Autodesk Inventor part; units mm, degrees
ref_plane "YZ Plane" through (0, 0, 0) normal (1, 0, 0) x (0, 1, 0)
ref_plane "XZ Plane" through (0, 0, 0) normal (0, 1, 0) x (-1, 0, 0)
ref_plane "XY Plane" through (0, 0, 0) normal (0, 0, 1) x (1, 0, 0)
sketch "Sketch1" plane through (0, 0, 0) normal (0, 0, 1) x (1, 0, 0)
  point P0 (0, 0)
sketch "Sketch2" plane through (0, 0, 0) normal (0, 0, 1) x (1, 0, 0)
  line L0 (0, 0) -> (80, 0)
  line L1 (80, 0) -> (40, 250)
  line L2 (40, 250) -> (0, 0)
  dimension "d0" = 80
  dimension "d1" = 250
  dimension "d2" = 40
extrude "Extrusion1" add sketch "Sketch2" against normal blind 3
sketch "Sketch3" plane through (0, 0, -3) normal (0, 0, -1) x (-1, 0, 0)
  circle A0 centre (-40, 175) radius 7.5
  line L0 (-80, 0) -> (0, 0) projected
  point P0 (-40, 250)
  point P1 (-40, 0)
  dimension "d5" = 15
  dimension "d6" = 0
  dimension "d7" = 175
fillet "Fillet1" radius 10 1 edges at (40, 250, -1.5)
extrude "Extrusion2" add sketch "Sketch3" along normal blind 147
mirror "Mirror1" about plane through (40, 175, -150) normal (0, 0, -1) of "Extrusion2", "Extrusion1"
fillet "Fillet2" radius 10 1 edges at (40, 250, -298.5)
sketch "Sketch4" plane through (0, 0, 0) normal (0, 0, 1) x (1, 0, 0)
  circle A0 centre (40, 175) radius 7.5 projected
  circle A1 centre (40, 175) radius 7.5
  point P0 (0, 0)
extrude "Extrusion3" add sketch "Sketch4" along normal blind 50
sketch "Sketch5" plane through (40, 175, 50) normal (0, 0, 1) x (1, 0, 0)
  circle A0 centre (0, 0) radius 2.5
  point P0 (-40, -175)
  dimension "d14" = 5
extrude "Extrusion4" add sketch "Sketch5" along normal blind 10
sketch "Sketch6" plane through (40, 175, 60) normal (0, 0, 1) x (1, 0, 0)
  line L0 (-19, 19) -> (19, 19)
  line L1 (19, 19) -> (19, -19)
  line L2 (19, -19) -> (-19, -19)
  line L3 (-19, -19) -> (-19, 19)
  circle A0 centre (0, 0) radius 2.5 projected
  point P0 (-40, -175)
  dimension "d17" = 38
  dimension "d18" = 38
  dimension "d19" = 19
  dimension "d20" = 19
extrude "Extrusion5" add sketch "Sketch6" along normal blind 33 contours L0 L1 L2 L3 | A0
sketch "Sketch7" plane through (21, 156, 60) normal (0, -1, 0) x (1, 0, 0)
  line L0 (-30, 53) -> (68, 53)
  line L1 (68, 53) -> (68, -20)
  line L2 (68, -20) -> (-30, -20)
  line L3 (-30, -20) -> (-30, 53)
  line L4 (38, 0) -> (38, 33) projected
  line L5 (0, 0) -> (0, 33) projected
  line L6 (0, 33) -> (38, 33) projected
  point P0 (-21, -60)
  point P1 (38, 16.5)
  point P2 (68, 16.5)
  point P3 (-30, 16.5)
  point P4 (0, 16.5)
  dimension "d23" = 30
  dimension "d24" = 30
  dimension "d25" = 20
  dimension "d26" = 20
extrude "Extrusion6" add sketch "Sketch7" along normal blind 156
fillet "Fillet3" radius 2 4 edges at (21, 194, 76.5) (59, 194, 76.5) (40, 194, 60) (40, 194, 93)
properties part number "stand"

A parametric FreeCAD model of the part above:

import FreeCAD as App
import Part
import Sketcher
from FreeCAD import Vector


def edges_at(feature, points):
    """Names of the edges that pass closest to the given points."""
    edges = feature.Shape.Edges
    near = lambda p: min(range(len(edges)), key=lambda i: edges[i].distToShape(Part.Vertex(*p))[0])
    return sorted({f"Edge{near(p) + 1}" for p in points})

doc = App.newDocument("Part")
body = doc.addObject("PartDesign::Body", "Body")

# Sketch on XY plane
sketch1 = body.newObject("Sketcher::SketchObject", "Sketch")
sketch1.AttachmentSupport = (doc.getObject("XY_Plane"), [""])
sketch1.MapMode = "FlatFace"
sketch1.addGeometry(Part.LineSegment(Vector(40, 250, 0), Vector(0, 0, 0)), False)
sketch1.addGeometry(Part.LineSegment(Vector(0, 0, 0), Vector(80, 0, 0)), False)
sketch1.addGeometry(Part.LineSegment(Vector(80, 0, 0), Vector(40, 250, 0)), False)
sketch1.addConstraint(Sketcher.Constraint("Coincident", 0, 2, 1, 1))
sketch1.addConstraint(Sketcher.Constraint("Coincident", 1, 2, 2, 1))
sketch1.addConstraint(Sketcher.Constraint("Coincident", 2, 2, 0, 1))
sketch1.addConstraint(Sketcher.Constraint("Horizontal", 1))
sketch1.addConstraint(Sketcher.Constraint("Coincident", 0, 2, -1, 1))
sketch1.addConstraint(Sketcher.Constraint("Equal", 0, 2))
sketch1.addConstraint(Sketcher.Constraint("DistanceX", 1, 1, 1, 2, 80.0))
sketch1.addConstraint(Sketcher.Constraint("DistanceY", -1, 1, 2, 2, 250.0))
pad1 = body.newObject("PartDesign::Pad", "Pad")
pad1.Profile = sketch1
pad1.Length = 3
pad1.Reversed = True
doc.recompute()

fillet = body.newObject("PartDesign::Fillet", "Fillet")
fillet.Base = (pad1, edges_at(pad1, [(40, 250, -1.5)]))
fillet.Radius = 10

# Sketch on XY plane
sketch2 = body.newObject("Sketcher::SketchObject", "Sketch001")
sketch2.AttachmentSupport = (doc.getObject("XY_Plane"), [""])
sketch2.MapMode = "FlatFace"
sketch2.AttachmentOffset = App.Placement(Vector(0, 0, -3), App.Rotation())
sketch2.addGeometry(Part.Circle(Vector(40, 175, 0), Vector(0, 0, 1), 8), False)
sketch2.addConstraint(Sketcher.Constraint("Diameter", 0, 15.0))
sketch2.addConstraint(Sketcher.Constraint("DistanceY", -1, 1, 0, 3, 175.0))
sketch2.addConstraint(Sketcher.Constraint("DistanceX", -1, 1, 0, 3, 40.0))
pad2 = body.newObject("PartDesign::Pad", "Pad001")
pad2.Profile = sketch2
pad2.Length = 147
pad2.Reversed = True
doc.recompute()

datumplane = body.newObject("PartDesign::Plane", "DatumPlane")
datumplane.AttachmentSupport = (doc.getObject("XY_Plane"), [""])
datumplane.MapMode = "FlatFace"
datumplane.AttachmentOffset = App.Placement(Vector(0, 0, -150), App.Rotation())
mirrored = body.newObject("PartDesign::Mirrored", "Mirrored")
mirrored.Originals = [pad2, pad1]
mirrored.MirrorPlane = (datumplane, [""])
body.Tip = mirrored
doc.recompute()

fillet2 = body.newObject("PartDesign::Fillet", "Fillet001")
fillet2.Base = (mirrored, edges_at(mirrored, [(40, 250, -298.5)]))
fillet2.Radius = 10

# Sketch on XY plane
sketch3 = body.newObject("Sketcher::SketchObject", "Sketch002")
sketch3.AttachmentSupport = (doc.getObject("XY_Plane"), [""])
sketch3.MapMode = "FlatFace"
sketch3.addGeometry(Part.Circle(Vector(40, 175, 0), Vector(0, 0, 1), 8), False)
sketch3.addConstraint(Sketcher.Constraint("Diameter", 0, 15.0))
sketch3.addConstraint(Sketcher.Constraint("DistanceX", -1, 1, 0, 3, 40.0))
sketch3.addConstraint(Sketcher.Constraint("DistanceY", -1, 1, 0, 3, 175.0))
pad3 = body.newObject("PartDesign::Pad", "Pad002")
pad3.Profile = sketch3
pad3.Length = 50

# Sketch on XY plane
sketch4 = body.newObject("Sketcher::SketchObject", "Sketch003")
sketch4.AttachmentSupport = (doc.getObject("XY_Plane"), [""])
sketch4.MapMode = "FlatFace"
sketch4.AttachmentOffset = App.Placement(Vector(0, 0, 50), App.Rotation())
sketch4.addGeometry(Part.Circle(Vector(40, 175, 0), Vector(0, 0, 1), 2.5), False)
sketch4.addConstraint(Sketcher.Constraint("Diameter", 0, 5.0))
sketch4.addConstraint(Sketcher.Constraint("DistanceX", -1, 1, 0, 3, 40.0))
sketch4.addConstraint(Sketcher.Constraint("DistanceY", -1, 1, 0, 3, 175.0))
pad4 = body.newObject("PartDesign::Pad", "Pad003")
pad4.Profile = sketch4
pad4.Length = 10

# Sketch on XY plane
sketch5 = body.newObject("Sketcher::SketchObject", "Sketch004")
sketch5.AttachmentSupport = (doc.getObject("XY_Plane"), [""])
sketch5.MapMode = "FlatFace"
sketch5.AttachmentOffset = App.Placement(Vector(0, 0, 60), App.Rotation())
sketch5.addGeometry(Part.LineSegment(Vector(59, 194, 0), Vector(21, 194, 0)), False)
sketch5.addGeometry(Part.LineSegment(Vector(21, 194, 0), Vector(21, 156, 0)), False)
sketch5.addGeometry(Part.LineSegment(Vector(21, 156, 0), Vector(59, 156, 0)), False)
sketch5.addGeometry(Part.LineSegment(Vector(59, 156, 0), Vector(59, 194, 0)), False)
sketch5.addConstraint(Sketcher.Constraint("Coincident", 0, 2, 1, 1))
sketch5.addConstraint(Sketcher.Constraint("Coincident", 1, 2, 2, 1))
sketch5.addConstraint(Sketcher.Constraint("Coincident", 2, 2, 3, 1))
sketch5.addConstraint(Sketcher.Constraint("Coincident", 3, 2, 0, 1))
sketch5.addConstraint(Sketcher.Constraint("Horizontal", 0))
sketch5.addConstraint(Sketcher.Constraint("Vertical", 1))
sketch5.addConstraint(Sketcher.Constraint("Horizontal", 2))
sketch5.addConstraint(Sketcher.Constraint("Vertical", 3))
sketch5.addConstraint(Sketcher.Constraint("Equal", 2, 1))
sketch5.addConstraint(Sketcher.Constraint("DistanceX", 0, 2, 0, 1, 38.0))
sketch5.addConstraint(Sketcher.Constraint("DistanceX", -1, 1, 0, 2, 21.0))
sketch5.addConstraint(Sketcher.Constraint("DistanceY", -1, 1, 0, 2, 194.0))
pad5 = body.newObject("PartDesign::Pad", "Pad004")
pad5.Profile = sketch5
pad5.Length = 33

# Sketch on XZ plane
sketch6 = body.newObject("Sketcher::SketchObject", "Sketch005")
sketch6.AttachmentSupport = (doc.getObject("XZ_Plane"), [""])
sketch6.MapMode = "FlatFace"
sketch6.AttachmentOffset = App.Placement(Vector(0, 0, -156), App.Rotation())
sketch6.addGeometry(Part.LineSegment(Vector(89, 113, 0), Vector(-9, 113, 0)), False)
sketch6.addGeometry(Part.LineSegment(Vector(-9, 113, 0), Vector(-9, 40, 0)), False)
sketch6.addGeometry(Part.LineSegment(Vector(-9, 40, 0), Vector(89, 40, 0)), False)
sketch6.addGeometry(Part.LineSegment(Vector(89, 40, 0), Vector(89, 113, 0)), False)
sketch6.addConstraint(Sketcher.Constraint("Coincident", 0, 2, 1, 1))
sketch6.addConstraint(Sketcher.Constraint("Coincident", 1, 2, 2, 1))
sketch6.addConstraint(Sketcher.Constraint("Coincident", 2, 2, 3, 1))
sketch6.addConstraint(Sketcher.Constraint("Coincident", 3, 2, 0, 1))
sketch6.addConstraint(Sketcher.Constraint("Horizontal", 0))
sketch6.addConstraint(Sketcher.Constraint("Vertical", 1))
sketch6.addConstraint(Sketcher.Constraint("Horizontal", 2))
sketch6.addConstraint(Sketcher.Constraint("Vertical", 3))
sketch6.addConstraint(Sketcher.Constraint("DistanceX", 0, 2, 0, 1, 98.0))
sketch6.addConstraint(Sketcher.Constraint("DistanceY", 1, 2, 1, 1, 73.0))
sketch6.addConstraint(Sketcher.Constraint("DistanceX", 0, 2, -1, 1, 9.0))
sketch6.addConstraint(Sketcher.Constraint("DistanceY", -1, 1, 0, 2, 113.0))
pad6 = body.newObject("PartDesign::Pad", "Pad005")
pad6.Profile = sketch6
pad6.Length = 156
doc.recompute()

fillet3 = body.newObject("PartDesign::Fillet", "Fillet002")
fillet3.Base = (pad6, edges_at(pad6, [
    (21, 194, 76.5),
    (59, 194, 76.5),
    (40, 194, 60),
    (40, 194, 93),
]))
fillet3.Radius = 2

doc.recompute()
